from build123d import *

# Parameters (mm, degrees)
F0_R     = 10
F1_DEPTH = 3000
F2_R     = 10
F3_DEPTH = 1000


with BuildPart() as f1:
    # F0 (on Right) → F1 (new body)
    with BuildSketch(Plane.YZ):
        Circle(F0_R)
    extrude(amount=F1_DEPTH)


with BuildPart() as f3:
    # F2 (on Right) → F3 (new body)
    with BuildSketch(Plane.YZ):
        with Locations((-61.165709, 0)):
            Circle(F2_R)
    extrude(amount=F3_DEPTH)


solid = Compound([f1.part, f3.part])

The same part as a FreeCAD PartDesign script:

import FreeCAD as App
import Part
import Sketcher

doc = App.newDocument("Part")
body = doc.addObject("PartDesign::Body", "Body")

sketch1 = body.newObject("Sketcher::SketchObject", "Sketch")
sketch1.AttachmentSupport = (doc.getObject("YZ_Plane"), [""])
sketch1.MapMode = "FlatFace"
sketch1.addGeometry(Part.Circle(App.Vector(0, 0, 0), App.Vector(0, 0, 1), 10), False)
sketch1.addConstraint([
    Sketcher.Constraint("Coincident", 0, 3, -1, 1),
    Sketcher.Constraint("Diameter", 0, 20.0),
])
pad1 = body.newObject("PartDesign::Pad", "Pad")
pad1.Profile = sketch1
pad1.Length = 3000
body2 = doc.addObject("PartDesign::Body", "Body001")

sketch2 = body2.newObject("Sketcher::SketchObject", "Sketch001")
sketch2.AttachmentSupport = (doc.getObject("YZ_Plane001"), [""])
sketch2.MapMode = "FlatFace"
sketch2.addGeometry(Part.Circle(App.Vector(-61, 0, 0), App.Vector(0, 0, 1), 10), False)
sketch2.addConstraint([
    Sketcher.Constraint("PointOnObject", 0, 3, -1),
    Sketcher.Constraint("Diameter", 0, 20.0),
    Sketcher.Constraint("DistanceX", 0, 3, -1, 1, 61.165709),
])
pad2 = body2.newObject("PartDesign::Pad", "Pad001")
pad2.Profile = sketch2
pad2.Length = 1000

doc.recompute()
